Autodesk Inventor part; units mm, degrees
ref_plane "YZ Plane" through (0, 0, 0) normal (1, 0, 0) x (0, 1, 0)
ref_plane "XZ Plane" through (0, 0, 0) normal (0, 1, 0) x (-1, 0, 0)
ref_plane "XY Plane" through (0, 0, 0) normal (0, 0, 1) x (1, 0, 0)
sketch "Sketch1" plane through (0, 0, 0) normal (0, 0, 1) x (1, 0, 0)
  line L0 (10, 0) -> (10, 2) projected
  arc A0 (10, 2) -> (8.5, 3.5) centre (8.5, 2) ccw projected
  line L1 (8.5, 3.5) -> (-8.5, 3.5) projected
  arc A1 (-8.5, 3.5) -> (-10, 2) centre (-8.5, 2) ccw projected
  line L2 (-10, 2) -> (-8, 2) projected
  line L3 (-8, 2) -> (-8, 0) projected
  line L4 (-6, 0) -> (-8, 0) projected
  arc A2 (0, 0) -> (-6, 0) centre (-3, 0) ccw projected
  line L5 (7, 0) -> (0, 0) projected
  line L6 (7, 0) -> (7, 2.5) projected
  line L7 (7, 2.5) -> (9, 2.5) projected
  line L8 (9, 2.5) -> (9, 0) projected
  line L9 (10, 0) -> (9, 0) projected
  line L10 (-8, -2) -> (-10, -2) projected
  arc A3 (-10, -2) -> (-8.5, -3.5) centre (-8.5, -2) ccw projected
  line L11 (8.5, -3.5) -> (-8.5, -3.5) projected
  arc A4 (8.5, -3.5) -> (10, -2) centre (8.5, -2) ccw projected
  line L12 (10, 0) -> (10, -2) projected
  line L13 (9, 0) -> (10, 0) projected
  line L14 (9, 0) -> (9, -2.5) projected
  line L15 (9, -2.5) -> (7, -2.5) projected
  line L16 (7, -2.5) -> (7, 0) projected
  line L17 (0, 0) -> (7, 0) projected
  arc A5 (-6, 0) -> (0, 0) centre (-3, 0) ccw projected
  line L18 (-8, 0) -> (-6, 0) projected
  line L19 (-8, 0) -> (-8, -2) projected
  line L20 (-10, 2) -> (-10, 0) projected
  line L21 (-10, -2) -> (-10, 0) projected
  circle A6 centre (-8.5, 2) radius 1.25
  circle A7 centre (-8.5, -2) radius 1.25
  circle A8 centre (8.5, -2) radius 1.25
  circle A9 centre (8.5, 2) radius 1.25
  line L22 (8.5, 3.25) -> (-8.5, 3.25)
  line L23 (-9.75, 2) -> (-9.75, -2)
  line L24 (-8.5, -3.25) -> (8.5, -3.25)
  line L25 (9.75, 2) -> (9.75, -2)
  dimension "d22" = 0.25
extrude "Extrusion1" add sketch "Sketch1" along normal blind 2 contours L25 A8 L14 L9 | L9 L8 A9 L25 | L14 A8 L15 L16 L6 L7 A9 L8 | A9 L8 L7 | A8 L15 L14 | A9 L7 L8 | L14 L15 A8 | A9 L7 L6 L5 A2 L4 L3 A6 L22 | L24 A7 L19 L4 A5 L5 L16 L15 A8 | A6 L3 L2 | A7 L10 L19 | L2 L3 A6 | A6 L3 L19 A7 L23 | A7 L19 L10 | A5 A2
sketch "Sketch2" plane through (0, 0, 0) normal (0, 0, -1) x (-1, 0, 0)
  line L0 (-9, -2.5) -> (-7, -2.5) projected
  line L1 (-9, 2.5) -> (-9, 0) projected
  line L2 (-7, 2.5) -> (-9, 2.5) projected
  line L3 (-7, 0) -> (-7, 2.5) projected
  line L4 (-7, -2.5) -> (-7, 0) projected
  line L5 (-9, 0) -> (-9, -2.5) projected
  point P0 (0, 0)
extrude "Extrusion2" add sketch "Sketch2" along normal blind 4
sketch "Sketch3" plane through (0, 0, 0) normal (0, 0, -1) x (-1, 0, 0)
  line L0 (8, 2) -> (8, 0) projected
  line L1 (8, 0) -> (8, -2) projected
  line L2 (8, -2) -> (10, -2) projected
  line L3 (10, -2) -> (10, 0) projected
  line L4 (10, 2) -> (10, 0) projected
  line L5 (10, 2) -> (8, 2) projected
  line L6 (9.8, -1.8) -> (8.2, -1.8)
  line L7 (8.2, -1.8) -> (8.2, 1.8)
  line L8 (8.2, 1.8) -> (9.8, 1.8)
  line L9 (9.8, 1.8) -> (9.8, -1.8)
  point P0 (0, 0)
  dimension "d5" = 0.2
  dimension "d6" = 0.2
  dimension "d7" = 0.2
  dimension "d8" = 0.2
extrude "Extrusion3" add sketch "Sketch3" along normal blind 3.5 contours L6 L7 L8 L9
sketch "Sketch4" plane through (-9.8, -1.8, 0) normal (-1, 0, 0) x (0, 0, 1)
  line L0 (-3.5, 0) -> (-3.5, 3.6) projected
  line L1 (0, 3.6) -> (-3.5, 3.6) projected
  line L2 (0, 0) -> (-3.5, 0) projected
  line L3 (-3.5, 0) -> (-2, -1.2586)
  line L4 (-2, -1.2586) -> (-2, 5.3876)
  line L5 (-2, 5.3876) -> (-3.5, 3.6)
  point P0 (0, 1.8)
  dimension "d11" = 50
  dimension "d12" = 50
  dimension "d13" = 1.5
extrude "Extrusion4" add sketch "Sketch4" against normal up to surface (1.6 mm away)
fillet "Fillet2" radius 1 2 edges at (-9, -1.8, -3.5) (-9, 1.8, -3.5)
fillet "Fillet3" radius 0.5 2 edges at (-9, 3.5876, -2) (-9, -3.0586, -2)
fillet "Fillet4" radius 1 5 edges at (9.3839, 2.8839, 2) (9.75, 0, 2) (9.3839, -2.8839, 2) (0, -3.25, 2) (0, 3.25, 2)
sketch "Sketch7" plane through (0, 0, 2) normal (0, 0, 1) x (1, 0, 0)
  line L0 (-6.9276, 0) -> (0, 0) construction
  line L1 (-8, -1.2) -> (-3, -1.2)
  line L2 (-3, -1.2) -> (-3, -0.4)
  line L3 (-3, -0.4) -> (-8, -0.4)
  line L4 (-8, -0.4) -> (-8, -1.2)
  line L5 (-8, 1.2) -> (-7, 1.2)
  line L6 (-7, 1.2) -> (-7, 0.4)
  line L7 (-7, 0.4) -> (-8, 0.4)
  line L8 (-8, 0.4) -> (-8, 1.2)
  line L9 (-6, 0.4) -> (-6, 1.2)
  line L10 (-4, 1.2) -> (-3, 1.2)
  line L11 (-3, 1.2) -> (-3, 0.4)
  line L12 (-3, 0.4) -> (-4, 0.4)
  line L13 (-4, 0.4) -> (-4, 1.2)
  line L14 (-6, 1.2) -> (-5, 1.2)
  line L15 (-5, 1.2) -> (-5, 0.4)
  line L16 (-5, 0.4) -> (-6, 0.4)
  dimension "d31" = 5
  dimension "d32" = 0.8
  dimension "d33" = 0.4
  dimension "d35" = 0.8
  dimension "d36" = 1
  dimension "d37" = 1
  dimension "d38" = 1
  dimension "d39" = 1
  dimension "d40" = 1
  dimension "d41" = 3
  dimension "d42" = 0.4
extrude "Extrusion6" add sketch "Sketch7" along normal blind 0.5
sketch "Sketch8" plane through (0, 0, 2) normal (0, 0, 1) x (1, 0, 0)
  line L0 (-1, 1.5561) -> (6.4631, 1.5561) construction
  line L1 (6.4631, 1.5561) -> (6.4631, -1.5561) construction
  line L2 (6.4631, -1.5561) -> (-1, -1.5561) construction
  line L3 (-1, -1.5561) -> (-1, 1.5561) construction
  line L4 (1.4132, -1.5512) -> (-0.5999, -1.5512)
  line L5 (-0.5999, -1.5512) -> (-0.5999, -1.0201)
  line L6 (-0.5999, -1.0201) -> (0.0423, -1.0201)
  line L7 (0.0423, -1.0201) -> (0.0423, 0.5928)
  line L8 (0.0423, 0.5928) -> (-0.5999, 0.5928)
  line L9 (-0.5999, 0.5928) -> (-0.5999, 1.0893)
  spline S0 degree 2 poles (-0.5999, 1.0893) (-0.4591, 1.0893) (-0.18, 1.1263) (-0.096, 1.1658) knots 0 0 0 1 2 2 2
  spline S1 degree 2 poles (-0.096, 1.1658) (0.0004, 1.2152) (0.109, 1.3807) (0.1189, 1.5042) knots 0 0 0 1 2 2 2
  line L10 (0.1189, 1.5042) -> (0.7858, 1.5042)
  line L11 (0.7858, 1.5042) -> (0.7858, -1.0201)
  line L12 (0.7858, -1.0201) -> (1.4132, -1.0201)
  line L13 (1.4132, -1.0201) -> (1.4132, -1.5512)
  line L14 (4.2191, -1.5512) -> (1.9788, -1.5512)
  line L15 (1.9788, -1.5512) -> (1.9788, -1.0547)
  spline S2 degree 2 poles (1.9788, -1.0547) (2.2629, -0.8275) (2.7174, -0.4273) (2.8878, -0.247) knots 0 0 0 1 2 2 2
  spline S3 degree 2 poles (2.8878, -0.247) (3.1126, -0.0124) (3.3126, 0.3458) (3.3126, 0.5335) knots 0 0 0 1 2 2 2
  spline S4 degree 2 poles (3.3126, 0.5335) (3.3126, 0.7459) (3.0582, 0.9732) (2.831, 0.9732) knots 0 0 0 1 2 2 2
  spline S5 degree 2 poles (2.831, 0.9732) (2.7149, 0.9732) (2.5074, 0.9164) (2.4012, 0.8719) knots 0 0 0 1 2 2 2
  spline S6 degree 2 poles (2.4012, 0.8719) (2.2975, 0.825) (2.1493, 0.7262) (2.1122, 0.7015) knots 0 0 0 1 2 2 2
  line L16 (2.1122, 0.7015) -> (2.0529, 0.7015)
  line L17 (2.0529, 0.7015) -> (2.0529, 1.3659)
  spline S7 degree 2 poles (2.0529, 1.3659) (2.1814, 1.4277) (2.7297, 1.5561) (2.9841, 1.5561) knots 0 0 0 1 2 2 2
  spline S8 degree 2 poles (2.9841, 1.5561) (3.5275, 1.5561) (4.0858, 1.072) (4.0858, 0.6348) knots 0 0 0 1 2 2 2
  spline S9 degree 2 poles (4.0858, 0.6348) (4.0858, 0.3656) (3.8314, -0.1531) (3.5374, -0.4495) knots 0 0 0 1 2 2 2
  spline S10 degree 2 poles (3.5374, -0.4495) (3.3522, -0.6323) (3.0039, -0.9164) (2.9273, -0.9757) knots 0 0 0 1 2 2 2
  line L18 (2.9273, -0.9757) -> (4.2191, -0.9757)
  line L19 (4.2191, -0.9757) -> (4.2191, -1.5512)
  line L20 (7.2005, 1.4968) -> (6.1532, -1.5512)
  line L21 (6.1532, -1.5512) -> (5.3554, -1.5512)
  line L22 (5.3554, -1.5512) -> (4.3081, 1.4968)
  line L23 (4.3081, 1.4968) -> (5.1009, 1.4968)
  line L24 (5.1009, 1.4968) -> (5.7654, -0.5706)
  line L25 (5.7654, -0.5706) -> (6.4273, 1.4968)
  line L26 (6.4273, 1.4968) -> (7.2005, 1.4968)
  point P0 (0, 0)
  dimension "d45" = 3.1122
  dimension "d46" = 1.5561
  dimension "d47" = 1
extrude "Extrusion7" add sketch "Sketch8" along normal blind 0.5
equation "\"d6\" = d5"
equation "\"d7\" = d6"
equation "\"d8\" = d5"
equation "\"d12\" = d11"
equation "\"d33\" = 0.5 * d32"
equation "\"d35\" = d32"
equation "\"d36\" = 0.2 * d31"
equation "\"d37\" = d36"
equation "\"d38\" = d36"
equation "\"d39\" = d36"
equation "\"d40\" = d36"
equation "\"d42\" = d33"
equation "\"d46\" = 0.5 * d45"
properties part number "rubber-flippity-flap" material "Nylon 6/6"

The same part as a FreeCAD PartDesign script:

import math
import FreeCAD as App
import Part
import Sketcher
Q = App.Units.Quantity


def edges_at(feature, points):
    """Names of the edges that pass closest to the given points."""
    edges = feature.Shape.Edges
    near = lambda p: min(range(len(edges)), key=lambda i: edges[i].distToShape(Part.Vertex(*p))[0])
    return sorted({f"Edge{near(p) + 1}" for p in points})

doc = App.newDocument("Part")
body = doc.addObject("PartDesign::Body", "Body")

sketch1 = body.newObject("Sketcher::SketchObject", "Sketch")
sketch1.AttachmentSupport = (doc.getObject("XY_Plane"), [""])
sketch1.MapMode = "FlatFace"
sketch1.addGeometry([
    Part.LineSegment(App.Vector(9.8, -2, 0), App.Vector(9.8, 2, 0)),
    Part.ArcOfCircle(Part.Circle(App.Vector(8.5, 2, 0), App.Vector(0, 0, 1), 1.2), math.radians(0), math.radians(90)),
    Part.LineSegment(App.Vector(8.5, 3.2, 0), App.Vector(-8.5, 3.2, 0)),
    Part.ArcOfCircle(Part.Circle(App.Vector(-8.5, 2, 0), App.Vector(0, 0, 1), 1.2), math.radians(90), math.radians(180)),
    Part.LineSegment(App.Vector(-9.8, 2, 0), App.Vector(-9.8, -2, 0)),
    Part.ArcOfCircle(Part.Circle(App.Vector(-8.5, -2, 0), App.Vector(0, 0, 1), 1.2), math.radians(180), math.radians(270)),
    Part.LineSegment(App.Vector(-8.5, -3.2, 0), App.Vector(8.5, -3.2, 0)),
    Part.ArcOfCircle(Part.Circle(App.Vector(8.5, -2, 0), App.Vector(0, 0, 1), 1.2), math.radians(-90), math.radians(0)),
], False)
sketch1.addConstraint([
    Sketcher.Constraint("Tangent", 0, 2, 1, 1),
    Sketcher.Constraint("Tangent", 1, 2, 2, 1),
    Sketcher.Constraint("Tangent", 2, 2, 3, 1),
    Sketcher.Constraint("Tangent", 3, 2, 4, 1),
    Sketcher.Constraint("Tangent", 4, 2, 5, 1),
    Sketcher.Constraint("Tangent", 5, 2, 6, 1),
    Sketcher.Constraint("Tangent", 6, 2, 7, 1),
    Sketcher.Constraint("Tangent", 7, 2, 0, 1),
    Sketcher.Constraint("Vertical", 0),
    Sketcher.Constraint("Horizontal", 2),
    Sketcher.Constraint("Vertical", 4),
    Sketcher.Constraint("Horizontal", 6),
    Sketcher.Constraint("Equal", 1, 3),
    Sketcher.Constraint("Equal", 3, 5),
    Sketcher.Constraint("Equal", 5, 7),
    Sketcher.Constraint("Symmetric", 1, 3, 5, 3, -1, 1),
    Sketcher.Constraint("DistanceX", 2, 2, 2, 1, Q("17 mm")),
    Sketcher.Constraint("DistanceY", 0, 1, 0, 2, Q("4 mm")),
    Sketcher.Constraint("Radius", 1, Q("1.25 mm")),
])
pad1 = body.newObject("PartDesign::Pad", "Pad")
pad1.Profile = sketch1
pad1.Length = 2

sketch2 = body.newObject("Sketcher::SketchObject", "Sketch001")
sketch2.AttachmentSupport = (doc.getObject("XY_Plane"), [""])
sketch2.MapMode = "FlatFace"
sketch2.addGeometry([
    Part.LineSegment(App.Vector(9, 2.5, 0), App.Vector(9, -2.5, 0)),
    Part.LineSegment(App.Vector(9, -2.5, 0), App.Vector(7, -2.5, 0)),
    Part.LineSegment(App.Vector(7, -2.5, 0), App.Vector(7, 2.5, 0)),
    Part.LineSegment(App.Vector(7, 2.5, 0), App.Vector(9, 2.5, 0)),
], False)
sketch2.addConstraint([
    Sketcher.Constraint("Coincident", 0, 2, 1, 1),
    Sketcher.Constraint("Coincident", 1, 2, 2, 1),
    Sketcher.Constraint("Coincident", 2, 2, 3, 1),
    Sketcher.Constraint("Coincident", 3, 2, 0, 1),
    Sketcher.Constraint("Vertical", 0),
    Sketcher.Constraint("Horizontal", 1),
    Sketcher.Constraint("Vertical", 2),
    Sketcher.Constraint("Horizontal", 3),
    Sketcher.Constraint("DistanceX", 1, 2, 1, 1, Q("2 mm")),
    Sketcher.Constraint("DistanceY", 0, 2, 0, 1, Q("5 mm")),
    Sketcher.Constraint("DistanceX", -1, 1, 0, 2, Q("9 mm")),
    Sketcher.Constraint("DistanceY", 0, 2, -1, 1, Q("2.5 mm")),
])
pad2 = body.newObject("PartDesign::Pad", "Pad001")
pad2.Profile = sketch2
pad2.Length = 4
pad2.Reversed = True

sketch3 = body.newObject("Sketcher::SketchObject", "Sketch002")
sketch3.AttachmentSupport = (doc.getObject("XY_Plane"), [""])
sketch3.MapMode = "FlatFace"
sketch3.addGeometry([
    Part.LineSegment(App.Vector(-8.2, -1.8, 0), App.Vector(-9.8, -1.8, 0)),
    Part.LineSegment(App.Vector(-9.8, -1.8, 0), App.Vector(-9.8, 1.8, 0)),
    Part.LineSegment(App.Vector(-9.8, 1.8, 0), App.Vector(-8.2, 1.8, 0)),
    Part.LineSegment(App.Vector(-8.2, 1.8, 0), App.Vector(-8.2, -1.8, 0)),
], False)
sketch3.addConstraint([
    Sketcher.Constraint("Coincident", 0, 2, 1, 1),
    Sketcher.Constraint("Coincident", 1, 2, 2, 1),
    Sketcher.Constraint("Coincident", 2, 2, 3, 1),
    Sketcher.Constraint("Coincident", 3, 2, 0, 1),
    Sketcher.Constraint("Horizontal", 0),
    Sketcher.Constraint("Vertical", 1),
    Sketcher.Constraint("Horizontal", 2),
    Sketcher.Constraint("Vertical", 3),
    Sketcher.Constraint("DistanceX", 0, 2, 0, 1, Q("1.6 mm")),
    Sketcher.Constraint("DistanceY", 1, 1, 1, 2, Q("3.6 mm")),
    Sketcher.Constraint("DistanceX", 0, 2, -1, 1, Q("9.8 mm")),
    Sketcher.Constraint("DistanceY", 0, 2, -1, 1, Q("1.8 mm")),
])
pad3 = body.newObject("PartDesign::Pad", "Pad002")
pad3.Profile = sketch3
pad3.Length = 3.5
pad3.Reversed = True

sketch4 = body.newObject("Sketcher::SketchObject", "Sketch003")
sketch4.AttachmentSupport = (doc.getObject("YZ_Plane"), [""])
sketch4.MapMode = "FlatFace"
sketch4.AttachmentOffset = App.Placement(App.Vector(0, 0, -9.8), App.Rotation())
sketch4.addGeometry([
    Part.LineSegment(App.Vector(1.8, -3.5, 0), App.Vector(-1.8, -3.5, 0)),
    Part.LineSegment(App.Vector(-1.8, -3.5, 0), App.Vector(-3.1, -2, 0)),
    Part.LineSegment(App.Vector(-3.1, -2, 0), App.Vector(3.6, -2, 0)),
    Part.LineSegment(App.Vector(3.6, -2, 0), App.Vector(1.8, -3.5, 0)),
], False)
sketch4.addConstraint([
    Sketcher.Constraint("Coincident", 0, 2, 1, 1),
    Sketcher.Constraint("Coincident", 1, 2, 2, 1),
    Sketcher.Constraint("Coincident", 2, 2, 3, 1),
    Sketcher.Constraint("Coincident", 3, 2, 0, 1),
    Sketcher.Constraint("Horizontal", 0),
    Sketcher.Constraint("Horizontal", 2),
    Sketcher.Constraint("Perpendicular", 1, 3),
    Sketcher.Constraint("DistanceY", 0, 2, 1, 2, Q("1.5 mm")),
    Sketcher.Constraint("Angle", 1, Q("129.999 deg")),
    Sketcher.Constraint("DistanceX", 0, 2, 0, 1, Q("3.6 mm")),
    Sketcher.Constraint("DistanceY", 1, 2, -1, 1, Q("2 mm")),
    Sketcher.Constraint("DistanceX", 0, 2, -1, 1, Q("1.8 mm")),
])
pad4 = body.newObject("PartDesign::Pad", "Pad003")
pad4.Profile = sketch4
pad4.Length = 1.6
doc.recompute()

fillet = body.newObject("PartDesign::Fillet", "Fillet")
fillet.Base = (pad4, edges_at(pad4, [(-9, -1.8, -3.5), (-9, 1.8, -3.5)]))
fillet.Radius = 1
doc.recompute()

fillet2 = body.newObject("PartDesign::Fillet", "Fillet001")
fillet2.Base = (fillet, edges_at(fillet, [(-9, 3.588, -2), (-9, -3.059, -2)]))
fillet2.Radius = 0.5
doc.recompute()

fillet3 = body.newObject("PartDesign::Fillet", "Fillet002")
fillet3.Base = (fillet2, edges_at(fillet2, [
    (9.384, 2.884, 2),
    (9.75, 0, 2),
    (9.384, -2.884, 2),
    (0, -3.25, 2),
    (0, 3.25, 2),
]))
fillet3.Radius = 1

sketch5 = body.newObject("Sketcher::SketchObject", "Sketch004")
sketch5.AttachmentSupport = (doc.getObject("XY_Plane"), [""])
sketch5.MapMode = "FlatFace"
sketch5.AttachmentOffset = App.Placement(App.Vector(0, 0, 2), App.Rotation())
sketch5.addGeometry([
    Part.LineSegment(App.Vector(-8, -0.4, 0), App.Vector(-8, -1.2, 0)),
    Part.LineSegment(App.Vector(-8, -1.2, 0), App.Vector(-3, -1.2, 0)),
    Part.LineSegment(App.Vector(-3, -1.2, 0), App.Vector(-3, -0.4, 0)),
    Part.LineSegment(App.Vector(-3, -0.4, 0), App.Vector(-8, -0.4, 0)),
    Part.LineSegment(App.Vector(-7, 1.2, 0), App.Vector(-8, 1.2, 0)),
    Part.LineSegment(App.Vector(-8, 1.2, 0), App.Vector(-8, 0.4, 0)),
    Part.LineSegment(App.Vector(-8, 0.4, 0), App.Vector(-7, 0.4, 0)),
    Part.LineSegment(App.Vector(-7, 0.4, 0), App.Vector(-7, 1.2, 0)),
    Part.LineSegment(App.Vector(-6, 1.2, 0), App.Vector(-6, 0.4, 0)),
    Part.LineSegment(App.Vector(-6, 0.4, 0), App.Vector(-5, 0.4, 0)),
    Part.LineSegment(App.Vector(-5, 0.4, 0), App.Vector(-5, 1.2, 0)),
    Part.LineSegment(App.Vector(-5, 1.2, 0), App.Vector(-6, 1.2, 0)),
    Part.LineSegment(App.Vector(-3, 1.2, 0), App.Vector(-4, 1.2, 0)),
    Part.LineSegment(App.Vector(-4, 1.2, 0), App.Vector(-4, 0.4, 0)),
    Part.LineSegment(App.Vector(-4, 0.4, 0), App.Vector(-3, 0.4, 0)),
    Part.LineSegment(App.Vector(-3, 0.4, 0), App.Vector(-3, 1.2, 0)),
], False)
sketch5.addConstraint([
    Sketcher.Constraint("Coincident", 0, 2, 1, 1),
    Sketcher.Constraint("Coincident", 1, 2, 2, 1),
    Sketcher.Constraint("Coincident", 2, 2, 3, 1),
    Sketcher.Constraint("Coincident", 3, 2, 0, 1),
    Sketcher.Constraint("Coincident", 4, 2, 5, 1),
    Sketcher.Constraint("Coincident", 5, 2, 6, 1),
    Sketcher.Constraint("Coincident", 6, 2, 7, 1),
    Sketcher.Constraint("Coincident", 7, 2, 4, 1),
    Sketcher.Constraint("Coincident", 8, 2, 9, 1),
    Sketcher.Constraint("Coincident", 9, 2, 10, 1),
    Sketcher.Constraint("Coincident", 10, 2, 11, 1),
    Sketcher.Constraint("Coincident", 11, 2, 8, 1),
    Sketcher.Constraint("Coincident", 12, 2, 13, 1),
    Sketcher.Constraint("Coincident", 13, 2, 14, 1),
    Sketcher.Constraint("Coincident", 14, 2, 15, 1),
    Sketcher.Constraint("Coincident", 15, 2, 12, 1),
    Sketcher.Constraint("Vertical", 0),
    Sketcher.Constraint("Horizontal", 1),
    Sketcher.Constraint("Vertical", 2),
    Sketcher.Constraint("Horizontal", 3),
    Sketcher.Constraint("Horizontal", 4),
    Sketcher.Constraint("Vertical", 5),
    Sketcher.Constraint("Horizontal", 6),
    Sketcher.Constraint("Vertical", 7),
    Sketcher.Constraint("Vertical", 8),
    Sketcher.Constraint("Horizontal", 9),
    Sketcher.Constraint("Vertical", 10),
    Sketcher.Constraint("Horizontal", 11),
    Sketcher.Constraint("Horizontal", 12),
    Sketcher.Constraint("Vertical", 13),
    Sketcher.Constraint("Horizontal", 14),
    Sketcher.Constraint("Vertical", 15),
    Sketcher.Constraint("Symmetric", 0, 2, 4, 2, -1),
    Sketcher.Constraint("Symmetric", 2, 2, 14, 2, -1),
    Sketcher.Constraint("Horizontal", 6, 2, 8, 2),
    Sketcher.Constraint("Horizontal", 7, 2, 10, 2),
    Sketcher.Constraint("Horizontal", 11, 2, 12, 2),
    Sketcher.Constraint("Horizontal", 9, 2, 13, 2),
    Sketcher.Constraint("Equal", 6, 9),
    Sketcher.Constraint("Equal", 11, 12),
    Sketcher.Constraint("DistanceX", 1, 1, 1, 2, Q("5 mm")),
    Sketcher.Constraint("DistanceX", 4, 2, 4, 1, Q("1 mm")),
    Sketcher.Constraint("DistanceY", 0, 2, 0, 1, Q("0.8 mm")),
    Sketcher.Constraint("DistanceX", 1, 2, -1, 1, Q("3 mm")),
    Sketcher.Constraint("DistanceX", 9, 2, -1, 1, Q("5 mm")),
    Sketcher.Constraint("DistanceY", 2, 2, -1, 1, Q("0.4 mm")),
])
pad5 = body.newObject("PartDesign::Pad", "Pad004")
pad5.Profile = sketch5
pad5.Length = 0.5

sketch6 = body.newObject("Sketcher::SketchObject", "Sketch005")
sketch6.AttachmentSupport = (doc.getObject("XY_Plane"), [""])
sketch6.MapMode = "FlatFace"
sketch6.AttachmentOffset = App.Placement(App.Vector(0, 0, 2), App.Rotation())
sketch6.addGeometry([
    Part.LineSegment(App.Vector(-0.5999, -1.5512, 0), App.Vector(1.4132, -1.5512, 0)),
    Part.LineSegment(App.Vector(1.4132, -1.5512, 0), App.Vector(1.4132, -1.0201, 0)),
    Part.LineSegment(App.Vector(1.4132, -1.0201, 0), App.Vector(0.7858, -1.0201, 0)),
    Part.LineSegment(App.Vector(0.7858, -1.0201, 0), App.Vector(0.7858, 1.5042, 0)),
    Part.LineSegment(App.Vector(0.7858, 1.5042, 0), App.Vector(0.1189, 1.5042, 0)),
    Part.BSplineCurve([App.Vector(-0.096, 1.1658, 0), App.Vector(0.0004, 1.2152, 0), App.Vector(0.109, 1.3807, 0), App.Vector(0.1189, 1.5042, 0)], [3, 1, 3], [0, 1, 2], False, 2, [1, 1, 1, 1], False),
    Part.BSplineCurve([App.Vector(-0.5999, 1.0893, 0), App.Vector(-0.4591, 1.0893, 0), App.Vector(-0.18, 1.1263, 0), App.Vector(-0.096, 1.1658, 0)], [3, 1, 3], [0, 1, 2], False, 2, [1, 1, 1, 1], False),
    Part.LineSegment(App.Vector(-0.5999, 1.0893, 0), App.Vector(-0.5999, 0.5928, 0)),
    Part.LineSegment(App.Vector(-0.5999, 0.5928, 0), App.Vector(0.0423, 0.5928, 0)),
    Part.LineSegment(App.Vector(0.0423, 0.5928, 0), App.Vector(0.0423, -1.0201, 0)),
    Part.LineSegment(App.Vector(0.0423, -1.0201, 0), App.Vector(-0.5999, -1.0201, 0)),
    Part.LineSegment(App.Vector(-0.5999, -1.0201, 0), App.Vector(-0.5999, -1.5512, 0)),
    Part.LineSegment(App.Vector(1.9788, -1.5512, 0), App.Vector(4.2191, -1.5512, 0)),
    Part.LineSegment(App.Vector(4.2191, -1.5512, 0), App.Vector(4.2191, -0.9757, 0)),
    Part.LineSegment(App.Vector(4.2191, -0.9757, 0), App.Vector(2.9273, -0.9757, 0)),
    Part.BSplineCurve([App.Vector(3.5374, -0.4495, 0), App.Vector(3.3522, -0.6323, 0), App.Vector(3.0039, -0.9164, 0), App.Vector(2.9273, -0.9757, 0)], [3, 1, 3], [0, 1, 2], False, 2, [1, 1, 1, 1], False),
    Part.BSplineCurve([App.Vector(4.0858, 0.6348, 0), App.Vector(4.0858, 0.3656, 0), App.Vector(3.8314, -0.1531, 0), App.Vector(3.5374, -0.4495, 0)], [3, 1, 3], [0, 1, 2], False, 2, [1, 1, 1, 1], False),
    Part.BSplineCurve([App.Vector(2.9841, 1.5561, 0), App.Vector(3.5275, 1.5561, 0), App.Vector(4.0858, 1.072, 0), App.Vector(4.0858, 0.6348, 0)], [3, 1, 3], [0, 1, 2], False, 2, [1, 1, 1, 1], False),
    Part.BSplineCurve([App.Vector(2.0529, 1.3659, 0), App.Vector(2.1814, 1.4277, 0), App.Vector(2.7297, 1.5561, 0), App.Vector(2.9841, 1.5561, 0)], [3, 1, 3], [0, 1, 2], False, 2, [1, 1, 1, 1], False),
    Part.LineSegment(App.Vector(2.0529, 1.3659, 0), App.Vector(2.0529, 0.7015, 0)),
    Part.LineSegment(App.Vector(2.0529, 0.7015, 0), App.Vector(2.1122, 0.7015, 0)),
    Part.BSplineCurve([App.Vector(2.4012, 0.8719, 0), App.Vector(2.2975, 0.825, 0), App.Vector(2.1493, 0.7262, 0), App.Vector(2.1122, 0.7015, 0)], [3, 1, 3], [0, 1, 2], False, 2, [1, 1, 1, 1], False),
    Part.BSplineCurve([App.Vector(2.831, 0.9732, 0), App.Vector(2.7149, 0.9732, 0), App.Vector(2.5074, 0.9164, 0), App.Vector(2.4012, 0.8719, 0)], [3, 1, 3], [0, 1, 2], False, 2, [1, 1, 1, 1], False),
    Part.BSplineCurve([App.Vector(3.3126, 0.5335, 0), App.Vector(3.3126, 0.7459, 0), App.Vector(3.0582, 0.9732, 0), App.Vector(2.831, 0.9732, 0)], [3, 1, 3], [0, 1, 2], False, 2, [1, 1, 1, 1], False),
    Part.BSplineCurve([App.Vector(2.8878, -0.247, 0), App.Vector(3.1126, -0.0124, 0), App.Vector(3.3126, 0.3458, 0), App.Vector(3.3126, 0.5335, 0)], [3, 1, 3], [0, 1, 2], False, 2, [1, 1, 1, 1], False),
    Part.BSplineCurve([App.Vector(1.9788, -1.0547, 0), App.Vector(2.2629, -0.8275, 0), App.Vector(2.7174, -0.4273, 0), App.Vector(2.8878, -0.247, 0)], [3, 1, 3], [0, 1, 2], False, 2, [1, 1, 1, 1], False),
    Part.LineSegment(App.Vector(1.9788, -1.0547, 0), App.Vector(1.9788, -1.5512, 0)),
    Part.LineSegment(App.Vector(6.1532, -1.5512, 0), App.Vector(7.2005, 1.4968, 0)),
    Part.LineSegment(App.Vector(7.2005, 1.4968, 0), App.Vector(6.4273, 1.4968, 0)),
    Part.LineSegment(App.Vector(6.4273, 1.4968, 0), App.Vector(5.7654, -0.5706, 0)),
    Part.LineSegment(App.Vector(5.7654, -0.5706, 0), App.Vector(5.1009, 1.4968, 0)),
    Part.LineSegment(App.Vector(5.1009, 1.4968, 0), App.Vector(4.3081, 1.4968, 0)),
    Part.LineSegment(App.Vector(4.3081, 1.4968, 0), App.Vector(5.3554, -1.5512, 0)),
    Part.LineSegment(App.Vector(5.3554, -1.5512, 0), App.Vector(6.1532, -1.5512, 0)),
], False)
sketch6.addConstraint([
    Sketcher.Constraint("Block", 5),
    Sketcher.Constraint("Block", 6),
    Sketcher.Constraint("Block", 15),
    Sketcher.Constraint("Block", 16),
    Sketcher.Constraint("Block", 17),
    Sketcher.Constraint("Block", 18),
    Sketcher.Constraint("Block", 21),
    Sketcher.Constraint("Block", 22),
    Sketcher.Constraint("Block", 23),
    Sketcher.Constraint("Block", 24),
    Sketcher.Constraint("Block", 25),
    Sketcher.Constraint("Coincident", 0, 2, 1, 1),
    Sketcher.Constraint("Coincident", 1, 2, 2, 1),
    Sketcher.Constraint("Coincident", 2, 2, 3, 1),
    Sketcher.Constraint("Coincident", 3, 2, 4, 1),
    Sketcher.Constraint("Coincident", 4, 2, 5, 2),
    Sketcher.Constraint("Coincident", 6, 1, 7, 1),
    Sketcher.Constraint("Coincident", 7, 2, 8, 1),
    Sketcher.Constraint("Coincident", 8, 2, 9, 1),
    Sketcher.Constraint("Coincident", 9, 2, 10, 1),
    Sketcher.Constraint("Coincident", 10, 2, 11, 1),
    Sketcher.Constraint("Coincident", 11, 2, 0, 1),
    Sketcher.Constraint("Coincident", 12, 2, 13, 1),
    Sketcher.Constraint("Coincident", 13, 2, 14, 1),
    Sketcher.Constraint("Coincident", 14, 2, 15, 2),
    Sketcher.Constraint("Coincident", 18, 1, 19, 1),
    Sketcher.Constraint("Coincident", 19, 2, 20, 1),
    Sketcher.Constraint("Coincident", 20, 2, 21, 2),
    Sketcher.Constraint("Coincident", 25, 1, 26, 1),
    Sketcher.Constraint("Coincident", 26, 2, 12, 1),
    Sketcher.Constraint("Coincident", 27, 2, 28, 1),
    Sketcher.Constraint("Coincident", 28, 2, 29, 1),
    Sketcher.Constraint("Coincident", 29, 2, 30, 1),
    Sketcher.Constraint("Coincident", 30, 2, 31, 1),
    Sketcher.Constraint("Coincident", 31, 2, 32, 1),
    Sketcher.Constraint("Coincident", 32, 2, 33, 1),
    Sketcher.Constraint("Coincident", 33, 2, 27, 1),
    Sketcher.Constraint("Horizontal", 0),
    Sketcher.Constraint("Vertical", 1),
    Sketcher.Constraint("Horizontal", 2),
    Sketcher.Constraint("Vertical", 3),
    Sketcher.Constraint("Horizontal", 4),
    Sketcher.Constraint("Vertical", 7),
    Sketcher.Constraint("Horizontal", 8),
    Sketcher.Constraint("Vertical", 9),
    Sketcher.Constraint("Horizontal", 10),
    Sketcher.Constraint("Vertical", 11),
    Sketcher.Constraint("Horizontal", 12),
    Sketcher.Constraint("Vertical", 13),
    Sketcher.Constraint("Horizontal", 14),
    Sketcher.Constraint("Vertical", 19),
    Sketcher.Constraint("Horizontal", 20),
    Sketcher.Constraint("Vertical", 26),
    Sketcher.Constraint("Horizontal", 28),
    Sketcher.Constraint("Horizontal", 31),
    Sketcher.Constraint("Horizontal", 33),
    Sketcher.Constraint("Horizontal", 2, 2, 9, 2),
    Sketcher.Constraint("Horizontal", 11, 2, 12, 2),
    Sketcher.Constraint("Horizontal", 28, 2, 30, 2),
    Sketcher.Constraint("Horizontal", 26, 2, 32, 2),
    Sketcher.Constraint("Vertical", 7, 2, 10, 2),
    Sketcher.Constraint("Equal", 7, 26),
    Sketcher.Constraint("Equal", 27, 32),
    Sketcher.Constraint("DistanceX", 14, 2, 28, 2, Q("3.5 mm")),
    Sketcher.Constraint("DistanceX", 0, 1, 0, 2, Q("2.013 mm")),
    Sketcher.Constraint("DistanceX", 4, 2, 4, 1, Q("0.667 mm")),
    Sketcher.Constraint("DistanceY", 1, 1, 1, 2, Q("0.531 mm")),
    Sketcher.Constraint("DistanceY", 1, 2, -1, 1, Q("1.02 mm")),
    Sketcher.Constraint("DistanceX", 8, 2, 20, 2, Q("2.07 mm")),
    Sketcher.Constraint("DistanceX", 32, 2, 29, 2, Q("0.41 mm")),
    Sketcher.Constraint("Distance", 27, Q("3.223 mm")),
    Sketcher.Constraint("DistanceX", 12, 1, 12, 2, Q("2.2403 mm")),
    Sketcher.Constraint("DistanceX", 28, 2, 28, 1, Q("0.7732 mm")),
    Sketcher.Constraint("DistanceX", 31, 2, 31, 1, Q("0.7928 mm")),
    Sketcher.Constraint("DistanceX", 33, 1, 33, 2, Q("0.7978 mm")),
    Sketcher.Constraint("DistanceX", -1, 1, 30, 2, Q("5.101 mm")),
    Sketcher.Constraint("DistanceY", 13, 2, 29, 2, Q("0.405 mm")),
])
pad6 = body.newObject("PartDesign::Pad", "Pad005")
pad6.Profile = sketch6
pad6.Length = 0.5

doc.recompute()
